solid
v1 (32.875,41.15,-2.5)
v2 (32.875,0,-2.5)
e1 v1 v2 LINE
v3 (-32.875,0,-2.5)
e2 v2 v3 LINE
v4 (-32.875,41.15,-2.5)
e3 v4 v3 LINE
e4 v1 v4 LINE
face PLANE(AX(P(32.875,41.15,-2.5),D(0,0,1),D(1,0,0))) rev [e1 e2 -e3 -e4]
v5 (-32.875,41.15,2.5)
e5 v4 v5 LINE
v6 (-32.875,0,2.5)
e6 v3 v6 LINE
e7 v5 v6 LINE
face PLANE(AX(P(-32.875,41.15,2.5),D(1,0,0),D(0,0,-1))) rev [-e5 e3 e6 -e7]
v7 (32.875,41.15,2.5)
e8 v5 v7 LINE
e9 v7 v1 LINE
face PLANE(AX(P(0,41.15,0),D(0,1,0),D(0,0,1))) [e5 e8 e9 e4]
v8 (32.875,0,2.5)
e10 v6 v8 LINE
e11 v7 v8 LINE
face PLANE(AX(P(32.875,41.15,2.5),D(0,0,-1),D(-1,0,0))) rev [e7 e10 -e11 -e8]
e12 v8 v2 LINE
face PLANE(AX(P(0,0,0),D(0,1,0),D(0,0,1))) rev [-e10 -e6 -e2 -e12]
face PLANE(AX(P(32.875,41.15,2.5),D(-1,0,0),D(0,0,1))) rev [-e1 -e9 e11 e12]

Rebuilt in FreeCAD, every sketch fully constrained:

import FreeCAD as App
import Part
import Sketcher


def add_polygon(sketch, points):
    """Adds a closed chain of lines whose ends are joined by coincident constraints."""
    first, n = sketch.GeometryCount, len(points)
    for a, b in zip(points, points[1:] + points[:1]):
        sketch.addGeometry(Part.LineSegment(App.Vector(*a, 0), App.Vector(*b, 0)), False)
    for i in range(n):
        sketch.addConstraint(Sketcher.Constraint("Coincident", first + i, 2, first + (i + 1) % n, 1))

doc = App.newDocument("Part")
body = doc.addObject("PartDesign::Body", "Body")

# Sketch on XZ plane
sketch1 = body.newObject("Sketcher::SketchObject", "Sketch")
sketch1.AttachmentSupport = (doc.getObject("XZ_Plane"), [""])
sketch1.MapMode = "FlatFace"
add_polygon(sketch1, [(-33, -2), (-33, 2), (33, 2), (33, -2)])  # lines 0-3
sketch1.addConstraint([
    Sketcher.Constraint("Vertical", 0),
    Sketcher.Constraint("Horizontal", 1),
    Sketcher.Constraint("Vertical", 2),
    Sketcher.Constraint("Horizontal", 3),
    Sketcher.Constraint("Symmetric", 0, 2, 2, 2, -1, 1),
    Sketcher.Constraint("DistanceY", 0, 1, 0, 2, 5.0),
    Sketcher.Constraint("DistanceX", 1, 1, 1, 2, 65.75),
])
pad1 = body.newObject("PartDesign::Pad", "Pad")
pad1.Profile = sketch1
pad1.Length = 41.15
pad1.Reversed = True

doc.recompute()
